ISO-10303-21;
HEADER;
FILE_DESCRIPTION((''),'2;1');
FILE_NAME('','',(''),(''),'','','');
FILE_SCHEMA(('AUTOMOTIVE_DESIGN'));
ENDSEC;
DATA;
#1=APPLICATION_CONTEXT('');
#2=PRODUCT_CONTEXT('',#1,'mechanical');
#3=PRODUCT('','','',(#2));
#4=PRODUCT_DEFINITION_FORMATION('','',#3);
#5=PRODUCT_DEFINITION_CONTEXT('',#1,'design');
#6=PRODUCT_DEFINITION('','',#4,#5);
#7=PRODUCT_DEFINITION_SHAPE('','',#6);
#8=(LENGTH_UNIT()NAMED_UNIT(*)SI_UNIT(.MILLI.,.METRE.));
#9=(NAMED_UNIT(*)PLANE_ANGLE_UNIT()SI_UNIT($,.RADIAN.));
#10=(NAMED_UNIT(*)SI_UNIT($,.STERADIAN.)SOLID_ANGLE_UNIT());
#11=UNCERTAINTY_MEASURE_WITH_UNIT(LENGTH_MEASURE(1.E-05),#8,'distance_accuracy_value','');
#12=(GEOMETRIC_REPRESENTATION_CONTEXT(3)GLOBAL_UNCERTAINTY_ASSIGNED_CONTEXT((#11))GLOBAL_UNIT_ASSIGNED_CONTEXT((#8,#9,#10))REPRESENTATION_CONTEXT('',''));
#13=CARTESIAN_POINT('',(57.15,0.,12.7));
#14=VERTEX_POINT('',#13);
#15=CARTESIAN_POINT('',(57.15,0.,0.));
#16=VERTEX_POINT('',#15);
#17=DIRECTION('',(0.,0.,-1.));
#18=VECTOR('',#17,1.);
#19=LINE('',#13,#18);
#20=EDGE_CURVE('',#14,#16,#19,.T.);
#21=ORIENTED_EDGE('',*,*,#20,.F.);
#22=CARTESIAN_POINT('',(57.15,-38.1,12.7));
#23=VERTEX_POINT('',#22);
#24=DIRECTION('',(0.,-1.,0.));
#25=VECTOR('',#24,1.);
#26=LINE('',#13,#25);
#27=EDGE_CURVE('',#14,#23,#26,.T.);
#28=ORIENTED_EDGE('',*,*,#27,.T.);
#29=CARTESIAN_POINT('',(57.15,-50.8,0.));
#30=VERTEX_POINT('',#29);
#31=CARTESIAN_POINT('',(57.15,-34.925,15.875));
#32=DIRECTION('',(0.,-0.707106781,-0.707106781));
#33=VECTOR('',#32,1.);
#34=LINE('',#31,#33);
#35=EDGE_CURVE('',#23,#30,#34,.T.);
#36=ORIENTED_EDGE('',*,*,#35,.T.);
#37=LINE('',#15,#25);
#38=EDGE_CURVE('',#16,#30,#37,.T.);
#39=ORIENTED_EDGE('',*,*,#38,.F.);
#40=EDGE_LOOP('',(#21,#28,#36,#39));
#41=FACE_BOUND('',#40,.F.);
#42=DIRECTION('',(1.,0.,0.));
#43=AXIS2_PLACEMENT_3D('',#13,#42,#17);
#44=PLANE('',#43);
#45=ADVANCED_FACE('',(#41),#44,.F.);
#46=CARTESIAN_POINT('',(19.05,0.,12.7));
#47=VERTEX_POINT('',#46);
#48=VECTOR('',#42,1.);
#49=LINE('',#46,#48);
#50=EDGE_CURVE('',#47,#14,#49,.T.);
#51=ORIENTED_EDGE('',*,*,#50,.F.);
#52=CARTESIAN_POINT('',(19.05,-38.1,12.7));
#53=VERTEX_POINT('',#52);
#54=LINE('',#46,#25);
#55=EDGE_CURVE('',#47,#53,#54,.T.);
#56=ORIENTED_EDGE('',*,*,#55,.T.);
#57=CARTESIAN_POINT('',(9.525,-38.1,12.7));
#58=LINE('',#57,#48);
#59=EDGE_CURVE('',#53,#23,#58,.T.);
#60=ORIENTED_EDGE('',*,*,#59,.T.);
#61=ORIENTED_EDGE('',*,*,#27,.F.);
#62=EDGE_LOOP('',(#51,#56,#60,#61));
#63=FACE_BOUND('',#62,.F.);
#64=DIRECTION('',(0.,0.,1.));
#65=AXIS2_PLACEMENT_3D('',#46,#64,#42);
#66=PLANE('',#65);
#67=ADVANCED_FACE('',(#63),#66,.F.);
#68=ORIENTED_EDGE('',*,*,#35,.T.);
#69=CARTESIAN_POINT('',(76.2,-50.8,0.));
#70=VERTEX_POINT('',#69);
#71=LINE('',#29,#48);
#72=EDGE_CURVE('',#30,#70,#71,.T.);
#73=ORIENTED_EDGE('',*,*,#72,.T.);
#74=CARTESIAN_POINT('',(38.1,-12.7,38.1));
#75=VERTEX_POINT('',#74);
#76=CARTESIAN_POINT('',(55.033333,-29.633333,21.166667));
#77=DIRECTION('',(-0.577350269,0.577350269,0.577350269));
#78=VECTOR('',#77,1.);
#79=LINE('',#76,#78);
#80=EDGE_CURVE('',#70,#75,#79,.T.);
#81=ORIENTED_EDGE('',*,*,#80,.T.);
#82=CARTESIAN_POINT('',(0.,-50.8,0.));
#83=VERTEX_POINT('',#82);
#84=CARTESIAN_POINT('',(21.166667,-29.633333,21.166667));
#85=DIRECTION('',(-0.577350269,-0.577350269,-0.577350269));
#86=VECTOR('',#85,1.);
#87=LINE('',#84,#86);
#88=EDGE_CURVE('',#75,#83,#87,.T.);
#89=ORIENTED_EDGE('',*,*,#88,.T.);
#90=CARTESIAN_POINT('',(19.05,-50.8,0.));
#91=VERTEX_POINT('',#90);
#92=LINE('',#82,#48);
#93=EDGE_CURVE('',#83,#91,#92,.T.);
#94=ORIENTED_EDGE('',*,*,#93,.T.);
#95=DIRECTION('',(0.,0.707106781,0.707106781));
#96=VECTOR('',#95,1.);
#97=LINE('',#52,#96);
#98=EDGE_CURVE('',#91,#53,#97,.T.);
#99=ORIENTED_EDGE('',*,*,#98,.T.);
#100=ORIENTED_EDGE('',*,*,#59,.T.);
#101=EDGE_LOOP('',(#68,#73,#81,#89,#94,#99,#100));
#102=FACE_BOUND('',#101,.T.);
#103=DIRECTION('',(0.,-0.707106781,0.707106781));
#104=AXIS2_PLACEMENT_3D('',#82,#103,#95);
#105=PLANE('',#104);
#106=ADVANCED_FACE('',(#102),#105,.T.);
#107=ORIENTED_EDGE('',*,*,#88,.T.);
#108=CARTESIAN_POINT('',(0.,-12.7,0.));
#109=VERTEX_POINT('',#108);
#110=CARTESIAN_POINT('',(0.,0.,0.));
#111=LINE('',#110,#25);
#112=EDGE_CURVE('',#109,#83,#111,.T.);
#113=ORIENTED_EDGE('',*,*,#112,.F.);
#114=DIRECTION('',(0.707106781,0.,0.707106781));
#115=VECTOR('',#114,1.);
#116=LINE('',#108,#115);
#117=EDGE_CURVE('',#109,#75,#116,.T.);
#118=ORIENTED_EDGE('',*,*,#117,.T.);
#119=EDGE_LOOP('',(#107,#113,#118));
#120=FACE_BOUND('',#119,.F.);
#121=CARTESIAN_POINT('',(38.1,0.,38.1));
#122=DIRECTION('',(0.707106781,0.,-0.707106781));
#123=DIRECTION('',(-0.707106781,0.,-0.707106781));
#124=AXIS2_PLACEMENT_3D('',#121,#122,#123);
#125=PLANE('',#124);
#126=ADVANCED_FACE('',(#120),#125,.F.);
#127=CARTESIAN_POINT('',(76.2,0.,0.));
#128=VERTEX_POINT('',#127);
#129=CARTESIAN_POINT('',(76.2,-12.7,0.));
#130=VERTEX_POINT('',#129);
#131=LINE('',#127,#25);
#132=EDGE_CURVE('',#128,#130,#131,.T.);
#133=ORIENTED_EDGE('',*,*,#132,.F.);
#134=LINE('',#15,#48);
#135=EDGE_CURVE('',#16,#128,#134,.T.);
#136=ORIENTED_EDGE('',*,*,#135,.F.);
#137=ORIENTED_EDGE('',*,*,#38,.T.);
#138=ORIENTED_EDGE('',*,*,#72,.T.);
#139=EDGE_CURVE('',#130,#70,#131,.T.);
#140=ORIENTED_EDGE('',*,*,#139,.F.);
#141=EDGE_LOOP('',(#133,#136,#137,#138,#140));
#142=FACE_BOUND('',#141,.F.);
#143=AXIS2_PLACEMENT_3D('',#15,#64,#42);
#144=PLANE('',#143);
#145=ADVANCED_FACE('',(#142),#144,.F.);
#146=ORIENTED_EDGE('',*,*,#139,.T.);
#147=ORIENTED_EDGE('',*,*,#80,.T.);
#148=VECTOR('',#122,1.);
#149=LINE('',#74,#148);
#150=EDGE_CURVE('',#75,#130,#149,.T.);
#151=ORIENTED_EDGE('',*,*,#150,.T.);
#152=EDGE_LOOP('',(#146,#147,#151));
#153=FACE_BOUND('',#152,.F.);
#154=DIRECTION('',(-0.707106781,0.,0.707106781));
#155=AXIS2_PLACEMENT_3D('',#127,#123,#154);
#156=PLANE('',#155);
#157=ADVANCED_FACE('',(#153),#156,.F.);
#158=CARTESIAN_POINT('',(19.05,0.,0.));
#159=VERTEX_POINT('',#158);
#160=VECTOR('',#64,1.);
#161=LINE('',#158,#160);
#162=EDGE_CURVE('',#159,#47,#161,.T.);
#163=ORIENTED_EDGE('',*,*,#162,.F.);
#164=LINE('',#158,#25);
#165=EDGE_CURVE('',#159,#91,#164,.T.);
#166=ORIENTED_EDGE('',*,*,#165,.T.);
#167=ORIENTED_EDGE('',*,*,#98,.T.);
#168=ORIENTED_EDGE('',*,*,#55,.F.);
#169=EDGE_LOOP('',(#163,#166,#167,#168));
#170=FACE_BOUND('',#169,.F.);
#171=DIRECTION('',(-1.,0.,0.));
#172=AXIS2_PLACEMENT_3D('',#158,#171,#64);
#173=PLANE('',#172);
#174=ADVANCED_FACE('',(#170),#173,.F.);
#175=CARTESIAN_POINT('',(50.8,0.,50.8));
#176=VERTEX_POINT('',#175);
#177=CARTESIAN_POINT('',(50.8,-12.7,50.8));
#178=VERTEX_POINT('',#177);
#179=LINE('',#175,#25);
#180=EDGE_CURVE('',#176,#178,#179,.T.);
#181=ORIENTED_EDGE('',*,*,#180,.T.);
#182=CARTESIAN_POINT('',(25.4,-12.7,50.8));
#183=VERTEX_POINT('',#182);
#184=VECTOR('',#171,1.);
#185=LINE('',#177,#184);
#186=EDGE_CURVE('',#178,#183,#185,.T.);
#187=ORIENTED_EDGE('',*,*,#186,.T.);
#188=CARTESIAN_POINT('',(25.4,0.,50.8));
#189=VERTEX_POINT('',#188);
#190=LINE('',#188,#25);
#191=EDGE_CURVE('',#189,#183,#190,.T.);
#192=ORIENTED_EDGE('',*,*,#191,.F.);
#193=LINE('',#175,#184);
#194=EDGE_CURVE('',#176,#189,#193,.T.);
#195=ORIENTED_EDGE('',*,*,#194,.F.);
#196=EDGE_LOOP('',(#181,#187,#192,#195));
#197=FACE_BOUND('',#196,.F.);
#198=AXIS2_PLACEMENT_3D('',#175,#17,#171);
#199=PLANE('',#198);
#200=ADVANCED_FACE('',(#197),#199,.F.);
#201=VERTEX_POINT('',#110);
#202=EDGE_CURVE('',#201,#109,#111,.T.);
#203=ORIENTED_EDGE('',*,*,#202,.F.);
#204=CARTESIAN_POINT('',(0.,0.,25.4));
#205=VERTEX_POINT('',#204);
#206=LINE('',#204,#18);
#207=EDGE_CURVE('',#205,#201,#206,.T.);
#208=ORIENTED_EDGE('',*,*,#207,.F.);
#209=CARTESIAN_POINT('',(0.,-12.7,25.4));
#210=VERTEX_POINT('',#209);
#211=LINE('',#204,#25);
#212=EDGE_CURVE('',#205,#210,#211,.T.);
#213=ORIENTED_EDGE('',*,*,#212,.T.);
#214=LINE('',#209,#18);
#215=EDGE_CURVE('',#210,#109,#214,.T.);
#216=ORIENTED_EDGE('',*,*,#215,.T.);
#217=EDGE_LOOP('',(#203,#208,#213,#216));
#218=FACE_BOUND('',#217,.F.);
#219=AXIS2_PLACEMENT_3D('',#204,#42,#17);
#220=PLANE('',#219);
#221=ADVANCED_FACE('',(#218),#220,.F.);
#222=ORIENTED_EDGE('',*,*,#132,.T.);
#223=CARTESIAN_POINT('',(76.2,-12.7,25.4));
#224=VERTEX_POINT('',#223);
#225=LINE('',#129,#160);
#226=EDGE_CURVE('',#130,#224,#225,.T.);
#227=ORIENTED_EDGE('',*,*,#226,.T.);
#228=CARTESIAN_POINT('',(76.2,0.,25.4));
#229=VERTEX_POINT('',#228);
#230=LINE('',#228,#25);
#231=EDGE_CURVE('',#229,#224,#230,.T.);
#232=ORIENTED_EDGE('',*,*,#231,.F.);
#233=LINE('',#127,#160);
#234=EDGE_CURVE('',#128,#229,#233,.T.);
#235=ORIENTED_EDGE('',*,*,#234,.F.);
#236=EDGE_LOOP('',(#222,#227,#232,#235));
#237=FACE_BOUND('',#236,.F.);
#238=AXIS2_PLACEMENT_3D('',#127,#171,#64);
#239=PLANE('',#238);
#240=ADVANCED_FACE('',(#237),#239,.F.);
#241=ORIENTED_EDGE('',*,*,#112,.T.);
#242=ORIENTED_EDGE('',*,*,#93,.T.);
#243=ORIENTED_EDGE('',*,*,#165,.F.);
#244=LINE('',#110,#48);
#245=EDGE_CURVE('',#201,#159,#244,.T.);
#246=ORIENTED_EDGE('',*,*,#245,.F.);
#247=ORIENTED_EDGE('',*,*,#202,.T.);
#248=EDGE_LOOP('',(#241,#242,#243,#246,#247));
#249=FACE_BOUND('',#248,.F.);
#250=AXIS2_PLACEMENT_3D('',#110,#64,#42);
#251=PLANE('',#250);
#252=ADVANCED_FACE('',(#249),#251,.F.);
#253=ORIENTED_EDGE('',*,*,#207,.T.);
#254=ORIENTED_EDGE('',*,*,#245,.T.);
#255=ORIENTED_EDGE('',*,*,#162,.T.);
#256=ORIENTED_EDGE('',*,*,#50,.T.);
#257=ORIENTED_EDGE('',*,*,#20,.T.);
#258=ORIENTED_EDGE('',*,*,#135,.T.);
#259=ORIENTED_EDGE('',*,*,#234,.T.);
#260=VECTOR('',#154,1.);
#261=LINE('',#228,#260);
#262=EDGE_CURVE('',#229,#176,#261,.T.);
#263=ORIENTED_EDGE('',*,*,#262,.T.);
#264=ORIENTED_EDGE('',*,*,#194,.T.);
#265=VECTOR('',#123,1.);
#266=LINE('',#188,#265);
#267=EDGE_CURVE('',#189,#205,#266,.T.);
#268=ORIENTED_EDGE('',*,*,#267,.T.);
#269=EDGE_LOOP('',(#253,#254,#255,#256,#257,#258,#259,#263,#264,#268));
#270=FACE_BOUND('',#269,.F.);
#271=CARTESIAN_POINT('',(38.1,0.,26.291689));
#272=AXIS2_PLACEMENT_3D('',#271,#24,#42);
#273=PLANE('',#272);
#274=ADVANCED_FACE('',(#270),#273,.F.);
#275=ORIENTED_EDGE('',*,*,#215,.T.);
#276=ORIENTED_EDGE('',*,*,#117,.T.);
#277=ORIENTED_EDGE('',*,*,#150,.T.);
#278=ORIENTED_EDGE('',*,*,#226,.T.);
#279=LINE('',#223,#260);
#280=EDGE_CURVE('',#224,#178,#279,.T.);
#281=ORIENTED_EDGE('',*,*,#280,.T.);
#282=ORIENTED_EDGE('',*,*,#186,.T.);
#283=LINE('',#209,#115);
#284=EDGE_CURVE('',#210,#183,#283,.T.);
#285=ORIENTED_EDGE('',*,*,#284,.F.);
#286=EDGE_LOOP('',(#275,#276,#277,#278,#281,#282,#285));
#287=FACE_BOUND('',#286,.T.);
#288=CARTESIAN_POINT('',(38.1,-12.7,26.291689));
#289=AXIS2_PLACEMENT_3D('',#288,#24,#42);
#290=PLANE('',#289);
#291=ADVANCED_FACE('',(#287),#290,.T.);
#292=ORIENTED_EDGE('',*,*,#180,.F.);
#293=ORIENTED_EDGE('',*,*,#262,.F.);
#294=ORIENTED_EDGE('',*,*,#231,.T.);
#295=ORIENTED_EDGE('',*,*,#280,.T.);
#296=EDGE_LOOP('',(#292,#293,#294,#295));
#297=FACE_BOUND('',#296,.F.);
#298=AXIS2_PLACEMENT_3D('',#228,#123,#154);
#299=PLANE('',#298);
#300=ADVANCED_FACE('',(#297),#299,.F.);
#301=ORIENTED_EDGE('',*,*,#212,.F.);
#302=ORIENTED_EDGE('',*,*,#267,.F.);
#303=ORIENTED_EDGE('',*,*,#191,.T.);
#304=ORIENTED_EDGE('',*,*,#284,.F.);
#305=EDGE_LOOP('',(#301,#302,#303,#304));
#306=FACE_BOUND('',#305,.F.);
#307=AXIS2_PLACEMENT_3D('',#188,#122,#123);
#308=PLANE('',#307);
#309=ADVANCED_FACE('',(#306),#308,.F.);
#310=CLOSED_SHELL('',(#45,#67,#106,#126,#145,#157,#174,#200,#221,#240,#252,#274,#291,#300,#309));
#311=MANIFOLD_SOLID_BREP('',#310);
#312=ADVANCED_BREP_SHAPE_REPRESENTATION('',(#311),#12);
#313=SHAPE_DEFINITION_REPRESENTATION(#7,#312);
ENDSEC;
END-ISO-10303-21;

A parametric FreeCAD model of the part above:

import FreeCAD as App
import Part
import Sketcher
Q = App.Units.Quantity


def add_polygon(sketch, points):
    """Adds a closed chain of lines whose ends are joined by coincident constraints."""
    first, n = sketch.GeometryCount, len(points)
    for a, b in zip(points, points[1:] + points[:1]):
        sketch.addGeometry(Part.LineSegment(App.Vector(*a, 0), App.Vector(*b, 0)), False)
    for i in range(n):
        sketch.addConstraint(Sketcher.Constraint("Coincident", first + i, 2, first + (i + 1) % n, 1))

doc = App.newDocument("Part")
body = doc.addObject("PartDesign::Body", "Body")

sketch1 = body.newObject("Sketcher::SketchObject", "Sketch")
sketch1.AttachmentSupport = (doc.getObject("XZ_Plane"), [""])
sketch1.MapMode = "FlatFace"
add_polygon(sketch1, [(38, 38), (0, 0), (19, 0), (19, 13), (57, 13), (57, 0), (76, 0)])
sketch1.addConstraint(Sketcher.Constraint("Horizontal", 1))
sketch1.addConstraint(Sketcher.Constraint("Vertical", 2))
sketch1.addConstraint(Sketcher.Constraint("Horizontal", 3))
sketch1.addConstraint(Sketcher.Constraint("Vertical", 4))
sketch1.addConstraint(Sketcher.Constraint("Horizontal", 5))
sketch1.addConstraint(Sketcher.Constraint("Coincident", 0, 2, -1, 1))
sketch1.addConstraint(Sketcher.Constraint("PointOnObject", 4, 2, -1))
sketch1.addConstraint(Sketcher.Constraint("Perpendicular", 0, 6))
sketch1.addConstraint(Sketcher.Constraint("Equal", 1, 5))
sketch1.addConstraint(Sketcher.Constraint("Equal", 0, 6))
sketch1.addConstraint(Sketcher.Constraint("DistanceX", 3, 1, 3, 2, Q("1.5 in")))
sketch1.addConstraint(Sketcher.Constraint("DistanceY", 2, 1, 2, 2, Q("0.5 in")))
sketch1.addConstraint(Sketcher.Constraint("DistanceX", -1, 1, 5, 2, Q("3 in")))
pad1 = body.newObject("PartDesign::Pad", "Pad")
pad1.Profile = sketch1
pad1.Length = Q("2 in")

sketch2 = body.newObject("Sketcher::SketchObject", "Sketch001")
sketch2.AttachmentSupport = (doc.getObject("XZ_Plane"), [""])
sketch2.MapMode = "FlatFace"
add_polygon(sketch2, [(0, 25), (0, 0), (38, 38), (76, 0), (76, 25), (51, 51), (25, 51)])
sketch2.addConstraint(Sketcher.Constraint("Vertical", 0))
sketch2.addConstraint(Sketcher.Constraint("Vertical", 3))
sketch2.addConstraint(Sketcher.Constraint("Horizontal", 5))
sketch2.addConstraint(Sketcher.Constraint("Coincident", 0, 2, -1, 1))
sketch2.addConstraint(Sketcher.Constraint("PointOnObject", 2, 2, -1))
sketch2.addConstraint(Sketcher.Constraint("Perpendicular", 1, 2))
sketch2.addConstraint(Sketcher.Constraint("Parallel", 2, 4))
sketch2.addConstraint(Sketcher.Constraint("Perpendicular", 4, 6))
sketch2.addConstraint(Sketcher.Constraint("Horizontal", 3, 2, 6, 2))
sketch2.addConstraint(Sketcher.Constraint("Equal", 5, 0))
sketch2.addConstraint(Sketcher.Constraint("Equal", 1, 2))
sketch2.addConstraint(Sketcher.Constraint("DistanceX", 5, 2, 5, 1, Q("1 in")))
sketch2.addConstraint(Sketcher.Constraint("DistanceX", -1, 1, 2, 2, Q("3 in")))
pad2 = body.newObject("PartDesign::Pad", "Pad001")
pad2.Profile = sketch2
pad2.Length = Q("0.5 in")

sketch3 = body.newObject("Sketcher::SketchObject", "Sketch002")
sketch3.AttachmentSupport = (doc.getObject("YZ_Plane"), [""])
sketch3.MapMode = "FlatFace"
add_polygon(sketch3, [(-51, 38), (-51, 0), (-13, 38)])
sketch3.addConstraint(Sketcher.Constraint("Vertical", 0))
sketch3.addConstraint(Sketcher.Constraint("Horizontal", 2))
sketch3.addConstraint(Sketcher.Constraint("PointOnObject", 0, 2, -1))
sketch3.addConstraint(Sketcher.Constraint("Equal", 2, 0))
sketch3.addConstraint(Sketcher.Constraint("DistanceX", 2, 2, 2, 1, Q("1.5 in")))
sketch3.addConstraint(Sketcher.Constraint("DistanceX", 0, 2, -1, 1, Q("2 in")))
pocket1 = body.newObject("PartDesign::Pocket", "Pocket")
pocket1.Profile = sketch3
pocket1.Type = "ThroughAll"
pocket1.Reversed = True

doc.recompute()
